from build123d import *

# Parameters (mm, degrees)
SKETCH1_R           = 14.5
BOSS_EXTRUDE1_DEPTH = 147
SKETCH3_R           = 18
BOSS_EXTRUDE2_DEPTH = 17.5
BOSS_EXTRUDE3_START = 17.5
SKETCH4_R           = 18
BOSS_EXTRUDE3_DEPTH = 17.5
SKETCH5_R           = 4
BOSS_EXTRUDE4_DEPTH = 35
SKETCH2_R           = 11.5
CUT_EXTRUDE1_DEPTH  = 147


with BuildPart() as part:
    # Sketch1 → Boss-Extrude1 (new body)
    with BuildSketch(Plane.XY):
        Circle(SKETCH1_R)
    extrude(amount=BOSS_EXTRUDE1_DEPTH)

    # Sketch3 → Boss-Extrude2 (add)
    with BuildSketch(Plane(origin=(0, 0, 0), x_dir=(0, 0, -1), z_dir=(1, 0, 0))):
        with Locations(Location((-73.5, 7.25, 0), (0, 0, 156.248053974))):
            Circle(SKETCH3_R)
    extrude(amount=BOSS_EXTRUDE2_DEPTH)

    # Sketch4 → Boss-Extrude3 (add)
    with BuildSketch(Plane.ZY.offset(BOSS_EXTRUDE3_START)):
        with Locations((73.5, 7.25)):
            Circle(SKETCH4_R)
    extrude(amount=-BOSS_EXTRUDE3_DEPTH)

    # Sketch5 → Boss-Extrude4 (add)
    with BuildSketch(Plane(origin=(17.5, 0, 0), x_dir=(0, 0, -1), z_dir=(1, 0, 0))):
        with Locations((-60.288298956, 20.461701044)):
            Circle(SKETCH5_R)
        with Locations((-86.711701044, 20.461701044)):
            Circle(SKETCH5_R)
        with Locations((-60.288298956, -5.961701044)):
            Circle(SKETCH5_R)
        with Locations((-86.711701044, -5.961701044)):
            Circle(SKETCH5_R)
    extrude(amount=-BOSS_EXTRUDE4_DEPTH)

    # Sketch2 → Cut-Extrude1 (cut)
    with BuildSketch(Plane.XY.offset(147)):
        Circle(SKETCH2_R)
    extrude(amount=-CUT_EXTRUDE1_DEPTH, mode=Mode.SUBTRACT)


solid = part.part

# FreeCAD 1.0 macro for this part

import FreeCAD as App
import Part
import Sketcher

V = App.Vector
Q = App.Units.Quantity

doc = App.newDocument("Part")
params = doc.addObject("Spreadsheet::Sheet", "Params")
for row, (alias, value) in enumerate([
    ("sketch1_diameter", "29 mm"),
    ("pad1_length", "147 mm"),
    ("sketch2_diameter", "36 mm"),
    ("pad2_length", "17.5 mm"),
    ("sketch3_diameter", "36 mm"),
    ("pad3_length", "17.5 mm"),
    ("sketch4_diameter", "8 mm"),
    ("pad4_length", "35 mm"),
    ("sketch5_diameter", "23 mm"),
    ("pocket1_length", "147 mm"),
], start=1):
    params.set(f"A{row}", alias)
    params.set(f"B{row}", "=" + value)
    params.setAlias(f"B{row}", alias)

body = doc.addObject("PartDesign::Body", "Body")

sketch1 = body.newObject("Sketcher::SketchObject", "Sketch")
sketch1.AttachmentSupport = (doc.getObject("XY_Plane"), [""])
sketch1.MapMode = "FlatFace"
sketch1.addGeometry(Part.Circle(V(0, 0, 0), V(0, 0, 1), 14.5), False)
sketch1.addConstraint([
    Sketcher.Constraint("Coincident", 0, 3, -1, 1),
    Sketcher.Constraint("Diameter", 0, Q("29 mm")),
])
sketch1.setExpression("Constraints[1]", "Params.sketch1_diameter")
pad1 = body.newObject("PartDesign::Pad", "Pad")
pad1.Profile = sketch1
pad1.setExpression("Length", "Params.pad1_length")

sketch2 = body.newObject("Sketcher::SketchObject", "Sketch001")
sketch2.AttachmentSupport = (doc.getObject("YZ_Plane"), [""])
sketch2.MapMode = "FlatFace"
sketch2.addGeometry(Part.Circle(V(7.25, 73.5, 0), V(0, 0, 1), 18), False)
sketch2.addConstraint([
    Sketcher.Constraint("Diameter", 0, Q("36 mm")),
    Sketcher.Constraint("DistanceY", -1, 1, 0, 3, Q("73.5 mm")),
    Sketcher.Constraint("DistanceX", -1, 1, 0, 3, Q("7.25 mm")),
])
sketch2.setExpression("Constraints[0]", "Params.sketch2_diameter")
pad2 = body.newObject("PartDesign::Pad", "Pad001")
pad2.Profile = sketch2
pad2.setExpression("Length", "Params.pad2_length")

sketch3 = body.newObject("Sketcher::SketchObject", "Sketch002")
sketch3.AttachmentSupport = (doc.getObject("YZ_Plane"), [""])
sketch3.MapMode = "FlatFace"
sketch3.AttachmentOffset = App.Placement(V(0, 0, -17.5), App.Rotation())
sketch3.addGeometry(Part.Circle(V(7.25, 73.5, 0), V(0, 0, 1), 18), False)
sketch3.addConstraint([
    Sketcher.Constraint("Diameter", 0, Q("36 mm")),
    Sketcher.Constraint("DistanceY", -1, 1, 0, 3, Q("73.5 mm")),
    Sketcher.Constraint("DistanceX", -1, 1, 0, 3, Q("7.25 mm")),
])
sketch3.setExpression("Constraints[0]", "Params.sketch3_diameter")
pad3 = body.newObject("PartDesign::Pad", "Pad002")
pad3.Profile = sketch3
pad3.setExpression("Length", "Params.pad3_length")

sketch4 = body.newObject("Sketcher::SketchObject", "Sketch003")
sketch4.AttachmentSupport = (doc.getObject("YZ_Plane"), [""])
sketch4.MapMode = "FlatFace"
sketch4.AttachmentOffset = App.Placement(V(0, 0, 17.5), App.Rotation())
sketch4.addGeometry([
    Part.Circle(V(20.461701, 60.288299, 0), V(0, 0, 1), 4),
    Part.Circle(V(20.461701, 86.711701, 0), V(0, 0, 1), 4),
    Part.Circle(V(-5.961701, 60.288299, 0), V(0, 0, 1), 4),
    Part.Circle(V(-5.961701, 86.711701, 0), V(0, 0, 1), 4),
], False)
sketch4.addConstraint([
    Sketcher.Constraint("Equal", 0, 1),
    Sketcher.Constraint("Equal", 1, 2),
    Sketcher.Constraint("Equal", 2, 3),
    Sketcher.Constraint("Horizontal", 0, 3, 2, 3),
    Sketcher.Constraint("Horizontal", 1, 3, 3, 3),
    Sketcher.Constraint("Vertical", 0, 3, 1, 3),
    Sketcher.Constraint("Vertical", 2, 3, 3, 3),
    Sketcher.Constraint("Diameter", 0, Q("8 mm")),
    Sketcher.Constraint("DistanceX", -1, 1, 0, 3, Q("20.461701 mm")),
    Sketcher.Constraint("DistanceY", -1, 1, 0, 3, Q("60.288299 mm")),
    Sketcher.Constraint("DistanceY", -1, 1, 1, 3, Q("86.711701 mm")),
    Sketcher.Constraint("DistanceX", 2, 3, -1, 1, Q("5.961701 mm")),
])
sketch4.setExpression("Constraints[7]", "Params.sketch4_diameter")
pad4 = body.newObject("PartDesign::Pad", "Pad003")
pad4.Profile = sketch4
pad4.setExpression("Length", "Params.pad4_length")
pad4.Reversed = True

sketch5 = body.newObject("Sketcher::SketchObject", "Sketch004")
sketch5.AttachmentSupport = (doc.getObject("XY_Plane"), [""])
sketch5.MapMode = "FlatFace"
sketch5.AttachmentOffset = App.Placement(V(0, 0, 147), App.Rotation())
sketch5.addGeometry(Part.Circle(V(0, 0, 0), V(0, 0, 1), 11.5), False)
sketch5.addConstraint([
    Sketcher.Constraint("Coincident", 0, 3, -1, 1),
    Sketcher.Constraint("Diameter", 0, Q("23 mm")),
])
sketch5.setExpression("Constraints[1]", "Params.sketch5_diameter")
pocket1 = body.newObject("PartDesign::Pocket", "Pocket")
pocket1.Profile = sketch5
pocket1.setExpression("Length", "Params.pocket1_length")

doc.recompute()
